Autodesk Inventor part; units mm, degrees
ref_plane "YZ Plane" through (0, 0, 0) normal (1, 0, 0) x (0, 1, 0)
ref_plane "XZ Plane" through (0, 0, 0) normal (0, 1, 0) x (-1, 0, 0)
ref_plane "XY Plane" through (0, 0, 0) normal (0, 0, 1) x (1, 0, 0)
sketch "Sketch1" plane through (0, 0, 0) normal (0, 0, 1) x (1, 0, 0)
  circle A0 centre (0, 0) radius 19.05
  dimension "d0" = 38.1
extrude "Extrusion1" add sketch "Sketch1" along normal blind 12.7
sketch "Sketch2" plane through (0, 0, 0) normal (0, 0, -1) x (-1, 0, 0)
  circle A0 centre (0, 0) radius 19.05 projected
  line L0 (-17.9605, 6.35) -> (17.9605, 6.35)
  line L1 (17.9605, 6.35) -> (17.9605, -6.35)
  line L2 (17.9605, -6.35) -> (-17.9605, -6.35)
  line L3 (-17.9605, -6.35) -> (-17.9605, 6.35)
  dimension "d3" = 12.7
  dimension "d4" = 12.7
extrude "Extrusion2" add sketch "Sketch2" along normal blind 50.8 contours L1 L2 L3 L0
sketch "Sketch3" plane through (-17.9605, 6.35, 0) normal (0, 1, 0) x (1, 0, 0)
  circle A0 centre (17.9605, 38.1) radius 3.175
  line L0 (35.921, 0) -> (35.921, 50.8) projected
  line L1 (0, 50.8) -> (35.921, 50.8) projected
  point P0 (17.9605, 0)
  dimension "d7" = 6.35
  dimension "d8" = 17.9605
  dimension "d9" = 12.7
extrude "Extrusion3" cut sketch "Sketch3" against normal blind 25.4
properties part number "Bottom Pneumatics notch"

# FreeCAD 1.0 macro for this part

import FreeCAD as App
import Part
import Sketcher
Q = App.Units.Quantity


def add_polygon(sketch, points):
    """Adds a closed chain of lines whose ends are joined by coincident constraints."""
    first, n = sketch.GeometryCount, len(points)
    for a, b in zip(points, points[1:] + points[:1]):
        sketch.addGeometry(Part.LineSegment(App.Vector(*a, 0), App.Vector(*b, 0)), False)
    for i in range(n):
        sketch.addConstraint(Sketcher.Constraint("Coincident", first + i, 2, first + (i + 1) % n, 1))

doc = App.newDocument("Part")
body = doc.addObject("PartDesign::Body", "Body")

# Sketch on XY plane
sketch1 = body.newObject("Sketcher::SketchObject", "Sketch")
sketch1.AttachmentSupport = (doc.getObject("XY_Plane"), [""])
sketch1.MapMode = "FlatFace"
sketch1.addGeometry(Part.Circle(App.Vector(0, 0, 0), App.Vector(0, 0, 1), 19), False)
sketch1.addConstraint(Sketcher.Constraint("Coincident", 0, 3, -1, 1))
sketch1.addConstraint(Sketcher.Constraint("Diameter", 0, Q("1.5 in")))
pad1 = body.newObject("PartDesign::Pad", "Pad")
pad1.Profile = sketch1
pad1.Length = Q("0.5 in")

# Sketch on XY plane
sketch2 = body.newObject("Sketcher::SketchObject", "Sketch001")
sketch2.AttachmentSupport = (doc.getObject("XY_Plane"), [""])
sketch2.MapMode = "FlatFace"
add_polygon(sketch2, [(-18, -6), (-18, 6), (18, 6), (18, -6)])  # lines 0-3
sketch2.addConstraint(Sketcher.Constraint("Vertical", 0))
sketch2.addConstraint(Sketcher.Constraint("Horizontal", 1))
sketch2.addConstraint(Sketcher.Constraint("Vertical", 2))
sketch2.addConstraint(Sketcher.Constraint("Horizontal", 3))
sketch2.addConstraint(Sketcher.Constraint("Symmetric", 0, 2, 2, 2, -1, 1))
sketch2.addConstraint(Sketcher.Constraint("DistanceY", 0, 1, 0, 2, Q("0.5 in")))
sketch2.addConstraint(Sketcher.Constraint("DistanceX", 1, 1, 1, 2, Q("35.921 mm")))
pad2 = body.newObject("PartDesign::Pad", "Pad001")
pad2.Profile = sketch2
pad2.Length = Q("2 in")
pad2.Reversed = True

# Sketch on XZ plane
sketch3 = body.newObject("Sketcher::SketchObject", "Sketch002")
sketch3.AttachmentSupport = (doc.getObject("XZ_Plane"), [""])
sketch3.MapMode = "FlatFace"
sketch3.AttachmentOffset = App.Placement(App.Vector(0, 0, -0.25 * 25.4), App.Rotation())
sketch3.addGeometry(Part.Circle(App.Vector(0, -38.1, 0), App.Vector(0, 0, 1), 3.2), False)
sketch3.addConstraint(Sketcher.Constraint("PointOnObject", 0, 3, -2))
sketch3.addConstraint(Sketcher.Constraint("Diameter", 0, Q("0.25 in")))
sketch3.addConstraint(Sketcher.Constraint("DistanceY", 0, 3, -1, 1, Q("1.5 in")))
pocket1 = body.newObject("PartDesign::Pocket", "Pocket")
pocket1.Profile = sketch3
pocket1.Length = Q("1 in")
pocket1.Reversed = True

doc.recompute()
